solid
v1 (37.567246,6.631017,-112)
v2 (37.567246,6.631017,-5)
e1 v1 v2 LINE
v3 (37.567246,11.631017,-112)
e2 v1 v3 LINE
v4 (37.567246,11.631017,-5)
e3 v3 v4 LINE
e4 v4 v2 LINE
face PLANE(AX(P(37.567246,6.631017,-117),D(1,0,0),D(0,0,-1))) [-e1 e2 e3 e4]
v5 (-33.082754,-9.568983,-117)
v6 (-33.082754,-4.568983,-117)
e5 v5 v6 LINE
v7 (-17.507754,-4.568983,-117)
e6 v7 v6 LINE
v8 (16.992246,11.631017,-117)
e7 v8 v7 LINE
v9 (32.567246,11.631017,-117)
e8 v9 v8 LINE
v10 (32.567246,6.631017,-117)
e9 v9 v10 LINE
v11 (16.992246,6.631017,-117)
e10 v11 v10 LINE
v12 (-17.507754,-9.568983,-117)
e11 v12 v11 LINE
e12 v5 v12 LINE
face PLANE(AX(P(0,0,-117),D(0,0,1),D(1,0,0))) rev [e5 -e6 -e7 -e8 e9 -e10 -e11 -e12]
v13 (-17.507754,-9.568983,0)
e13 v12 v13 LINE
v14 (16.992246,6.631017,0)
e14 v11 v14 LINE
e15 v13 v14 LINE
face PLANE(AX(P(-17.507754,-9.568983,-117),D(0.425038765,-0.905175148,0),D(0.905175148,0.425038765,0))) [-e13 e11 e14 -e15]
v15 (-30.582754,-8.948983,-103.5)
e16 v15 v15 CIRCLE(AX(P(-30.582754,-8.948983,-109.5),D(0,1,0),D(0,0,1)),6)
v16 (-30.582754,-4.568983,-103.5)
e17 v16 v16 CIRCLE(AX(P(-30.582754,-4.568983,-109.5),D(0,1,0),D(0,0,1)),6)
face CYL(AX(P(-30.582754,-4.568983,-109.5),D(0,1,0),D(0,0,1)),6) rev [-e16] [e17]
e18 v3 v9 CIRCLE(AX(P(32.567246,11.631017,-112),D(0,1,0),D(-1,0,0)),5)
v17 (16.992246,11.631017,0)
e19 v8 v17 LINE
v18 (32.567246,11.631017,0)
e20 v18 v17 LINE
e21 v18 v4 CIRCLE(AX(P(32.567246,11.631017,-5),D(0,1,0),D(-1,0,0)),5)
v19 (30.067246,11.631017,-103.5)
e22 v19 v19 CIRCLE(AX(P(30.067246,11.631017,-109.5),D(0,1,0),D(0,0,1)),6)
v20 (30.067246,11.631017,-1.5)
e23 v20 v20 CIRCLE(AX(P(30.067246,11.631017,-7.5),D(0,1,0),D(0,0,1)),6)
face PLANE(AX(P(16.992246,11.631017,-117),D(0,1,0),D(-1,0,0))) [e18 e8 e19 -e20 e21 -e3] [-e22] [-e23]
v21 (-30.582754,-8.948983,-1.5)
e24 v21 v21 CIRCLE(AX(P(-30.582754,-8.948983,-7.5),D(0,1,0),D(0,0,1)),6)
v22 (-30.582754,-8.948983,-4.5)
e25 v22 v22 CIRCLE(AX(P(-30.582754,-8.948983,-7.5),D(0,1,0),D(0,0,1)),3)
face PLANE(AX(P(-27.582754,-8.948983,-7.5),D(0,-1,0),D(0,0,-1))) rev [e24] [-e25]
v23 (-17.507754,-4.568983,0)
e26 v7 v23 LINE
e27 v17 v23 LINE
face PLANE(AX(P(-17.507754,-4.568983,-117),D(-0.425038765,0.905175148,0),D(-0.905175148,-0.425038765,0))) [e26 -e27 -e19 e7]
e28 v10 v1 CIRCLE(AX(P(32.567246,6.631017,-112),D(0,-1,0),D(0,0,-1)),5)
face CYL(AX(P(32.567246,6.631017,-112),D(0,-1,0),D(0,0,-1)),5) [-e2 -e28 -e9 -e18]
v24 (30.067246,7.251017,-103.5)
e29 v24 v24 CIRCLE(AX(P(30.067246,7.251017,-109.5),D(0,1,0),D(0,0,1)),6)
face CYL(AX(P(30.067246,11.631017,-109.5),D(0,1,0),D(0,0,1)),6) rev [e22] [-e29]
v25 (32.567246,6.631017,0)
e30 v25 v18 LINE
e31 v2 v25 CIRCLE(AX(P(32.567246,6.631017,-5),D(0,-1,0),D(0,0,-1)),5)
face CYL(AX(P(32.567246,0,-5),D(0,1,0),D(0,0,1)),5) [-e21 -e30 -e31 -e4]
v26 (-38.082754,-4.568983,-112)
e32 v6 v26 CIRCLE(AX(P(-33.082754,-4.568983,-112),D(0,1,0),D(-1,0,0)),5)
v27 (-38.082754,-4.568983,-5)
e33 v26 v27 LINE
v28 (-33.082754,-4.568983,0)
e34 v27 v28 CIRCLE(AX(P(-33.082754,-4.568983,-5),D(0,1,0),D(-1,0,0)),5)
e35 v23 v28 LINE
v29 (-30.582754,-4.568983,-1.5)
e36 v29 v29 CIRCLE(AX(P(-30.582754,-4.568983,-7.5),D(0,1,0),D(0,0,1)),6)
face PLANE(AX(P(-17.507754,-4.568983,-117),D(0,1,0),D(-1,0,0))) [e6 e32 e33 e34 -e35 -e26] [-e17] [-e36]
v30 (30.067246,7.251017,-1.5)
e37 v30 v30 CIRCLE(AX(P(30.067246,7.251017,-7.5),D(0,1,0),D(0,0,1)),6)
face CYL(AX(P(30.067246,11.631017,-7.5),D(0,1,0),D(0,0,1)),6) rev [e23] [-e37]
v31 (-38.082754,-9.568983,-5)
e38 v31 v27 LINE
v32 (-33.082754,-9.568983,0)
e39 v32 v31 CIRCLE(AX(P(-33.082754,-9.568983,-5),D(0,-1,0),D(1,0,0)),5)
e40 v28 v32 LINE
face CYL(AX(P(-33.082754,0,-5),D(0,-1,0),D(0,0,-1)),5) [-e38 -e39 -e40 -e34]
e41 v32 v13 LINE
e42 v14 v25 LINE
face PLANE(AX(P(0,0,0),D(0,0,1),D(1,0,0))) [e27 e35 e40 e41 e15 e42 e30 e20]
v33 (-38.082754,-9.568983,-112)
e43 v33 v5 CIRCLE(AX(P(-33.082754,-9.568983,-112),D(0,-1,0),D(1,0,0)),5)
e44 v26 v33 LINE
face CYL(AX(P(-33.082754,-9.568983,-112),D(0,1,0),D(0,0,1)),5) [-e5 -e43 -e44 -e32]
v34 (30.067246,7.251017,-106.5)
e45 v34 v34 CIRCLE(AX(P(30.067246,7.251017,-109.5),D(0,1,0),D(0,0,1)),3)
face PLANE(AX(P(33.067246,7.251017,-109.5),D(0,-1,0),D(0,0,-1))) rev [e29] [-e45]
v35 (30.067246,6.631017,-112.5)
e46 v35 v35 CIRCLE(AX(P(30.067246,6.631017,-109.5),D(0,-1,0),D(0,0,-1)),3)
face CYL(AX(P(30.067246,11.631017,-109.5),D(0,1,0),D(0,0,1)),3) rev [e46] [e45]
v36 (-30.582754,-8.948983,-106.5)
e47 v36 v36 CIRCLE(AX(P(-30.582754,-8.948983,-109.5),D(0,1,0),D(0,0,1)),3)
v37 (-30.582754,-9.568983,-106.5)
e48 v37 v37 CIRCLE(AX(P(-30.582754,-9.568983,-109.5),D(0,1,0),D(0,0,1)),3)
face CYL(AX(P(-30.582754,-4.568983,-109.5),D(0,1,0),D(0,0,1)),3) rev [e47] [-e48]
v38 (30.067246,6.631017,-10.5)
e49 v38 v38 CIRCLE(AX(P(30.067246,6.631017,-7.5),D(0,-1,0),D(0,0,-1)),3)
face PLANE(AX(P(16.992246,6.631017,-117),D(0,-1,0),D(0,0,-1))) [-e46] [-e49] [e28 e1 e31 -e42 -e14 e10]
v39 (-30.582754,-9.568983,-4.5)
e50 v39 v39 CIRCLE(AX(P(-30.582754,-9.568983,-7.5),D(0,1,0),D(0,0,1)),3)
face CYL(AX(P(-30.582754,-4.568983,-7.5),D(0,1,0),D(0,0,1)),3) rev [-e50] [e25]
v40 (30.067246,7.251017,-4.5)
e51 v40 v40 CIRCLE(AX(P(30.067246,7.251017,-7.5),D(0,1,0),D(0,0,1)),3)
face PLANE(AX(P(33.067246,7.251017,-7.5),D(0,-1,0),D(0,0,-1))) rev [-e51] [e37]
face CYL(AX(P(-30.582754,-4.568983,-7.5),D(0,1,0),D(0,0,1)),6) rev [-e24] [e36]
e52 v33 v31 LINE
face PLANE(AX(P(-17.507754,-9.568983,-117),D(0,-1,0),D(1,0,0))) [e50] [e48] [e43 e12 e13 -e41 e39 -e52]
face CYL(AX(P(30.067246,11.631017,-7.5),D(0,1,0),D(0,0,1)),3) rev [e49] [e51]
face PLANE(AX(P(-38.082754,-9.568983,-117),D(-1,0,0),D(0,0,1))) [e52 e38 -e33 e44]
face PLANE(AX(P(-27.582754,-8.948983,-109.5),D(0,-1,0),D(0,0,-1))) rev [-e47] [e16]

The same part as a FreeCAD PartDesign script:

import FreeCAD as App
import Part
import Sketcher

V = App.Vector


def edges_at(feature, points):
    """Names of the edges that pass closest to the given points."""
    edges = feature.Shape.Edges
    near = lambda p: min(range(len(edges)), key=lambda i: edges[i].distToShape(Part.Vertex(*p))[0])
    return sorted({f"Edge{near(p) + 1}" for p in points})

doc = App.newDocument("Part")
body = doc.addObject("PartDesign::Body", "Body")

sketch1 = doc.addObject("Sketcher::SketchObject", "Sketch")
body.addObject(sketch1)
sketch1.AttachmentSupport = (doc.XY_Plane, [""])
sketch1.MapMode = "FlatFace"
sketch1.addGeometry(Part.LineSegment(V(17, 12, 0), V(-18, -5, 0)), False)
sketch1.addGeometry(Part.LineSegment(V(-18, -5, 0), V(-38, -5, 0)), False)
sketch1.addGeometry(Part.LineSegment(V(-38, -5, 0), V(-38, -10, 0)), False)
sketch1.addGeometry(Part.LineSegment(V(-38, -10, 0), V(-18, -10, 0)), False)
sketch1.addGeometry(Part.LineSegment(V(-18, -10, 0), V(17, 7, 0)), False)
sketch1.addGeometry(Part.LineSegment(V(17, 7, 0), V(38, 7, 0)), False)
sketch1.addGeometry(Part.LineSegment(V(38, 7, 0), V(38, 12, 0)), False)
sketch1.addGeometry(Part.LineSegment(V(38, 12, 0), V(17, 12, 0)), False)
sketch1.addConstraint(Sketcher.Constraint("Coincident", 0, 2, 1, 1))
sketch1.addConstraint(Sketcher.Constraint("Coincident", 1, 2, 2, 1))
sketch1.addConstraint(Sketcher.Constraint("Coincident", 2, 2, 3, 1))
sketch1.addConstraint(Sketcher.Constraint("Coincident", 3, 2, 4, 1))
sketch1.addConstraint(Sketcher.Constraint("Coincident", 4, 2, 5, 1))
sketch1.addConstraint(Sketcher.Constraint("Coincident", 5, 2, 6, 1))
sketch1.addConstraint(Sketcher.Constraint("Coincident", 6, 2, 7, 1))
sketch1.addConstraint(Sketcher.Constraint("Coincident", 7, 2, 0, 1))
sketch1.addConstraint(Sketcher.Constraint("Horizontal", 1))
sketch1.addConstraint(Sketcher.Constraint("Vertical", 2))
sketch1.addConstraint(Sketcher.Constraint("Horizontal", 3))
sketch1.addConstraint(Sketcher.Constraint("Horizontal", 5))
sketch1.addConstraint(Sketcher.Constraint("Vertical", 6))
sketch1.addConstraint(Sketcher.Constraint("Horizontal", 7))
sketch1.addConstraint(Sketcher.Constraint("Parallel", 0, 4))
sketch1.addConstraint(Sketcher.Constraint("Vertical", 0, 2, 3, 2))
sketch1.addConstraint(Sketcher.Constraint("Vertical", 4, 2, 7, 2))
sketch1.addConstraint(Sketcher.Constraint("Equal", 3, 5))
sketch1.addConstraint(Sketcher.Constraint("DistanceY", 2, 2, 2, 1, 5.0))
sketch1.addConstraint(Sketcher.Constraint("DistanceX", 0, 2, 4, 2, 34.5))
sketch1.addConstraint(Sketcher.Constraint("DistanceY", 0, 2, 4, 2, 11.2))
sketch1.addConstraint(Sketcher.Constraint("DistanceX", 1, 2, 1, 1, 20.575))
sketch1.addConstraint(Sketcher.Constraint("DistanceX", 0, 2, -1, 1, 17.507754))
sketch1.addConstraint(Sketcher.Constraint("DistanceY", 0, 2, -1, 1, 4.568983))
pad1 = doc.addObject("PartDesign::Pad", "Pad")
body.addObject(pad1)
pad1.Profile = sketch1
pad1.Length = 117
pad1.Reversed = True

sketch2 = doc.addObject("Sketcher::SketchObject", "Sketch001")
body.addObject(sketch2)
sketch2.AttachmentSupport = (doc.XZ_Plane, [""])
sketch2.MapMode = "FlatFace"
sketch2.AttachmentOffset = App.Placement(V(0, 0, 4.568983), App.Rotation())
sketch2.addGeometry(Part.Circle(V(-30.6, -109.5, 0), V(0, 0, 1), 3), False)
sketch2.addGeometry(Part.Circle(V(-30.6, -7.5, 0), V(0, 0, 1), 3), False)
sketch2.addConstraint(Sketcher.Constraint("Equal", 0, 1))
sketch2.addConstraint(Sketcher.Constraint("Vertical", 0, 3, 1, 3))
sketch2.addConstraint(Sketcher.Constraint("Diameter", 0, 6.0))
sketch2.addConstraint(Sketcher.Constraint("DistanceY", 0, 3, 1, 3, 102.0))
sketch2.addConstraint(Sketcher.Constraint("DistanceY", 0, 3, -1, 1, 109.5))
sketch2.addConstraint(Sketcher.Constraint("DistanceX", 0, 3, -1, 1, 30.582754))
doc.recompute()
hole = doc.addObject("PartDesign::Hole", "Hole")
body.addObject(hole)
hole.Profile = sketch2
hole.ThreadType = "None"
hole.Diameter = 6
hole.DepthType = "ThroughAll"
hole.HoleCutType = "Counterbore"
hole.HoleCutDiameter = 12
hole.HoleCutDepth = 4.38
hole.Reversed = True

sketch3 = doc.addObject("Sketcher::SketchObject", "Sketch002")
body.addObject(sketch3)
sketch3.AttachmentSupport = (doc.XZ_Plane, [""])
sketch3.MapMode = "FlatFace"
sketch3.AttachmentOffset = App.Placement(V(0, 0, -11.631017), App.Rotation())
sketch3.addGeometry(Part.Circle(V(30.1, -7.5, 0), V(0, 0, 1), 3), False)
sketch3.addGeometry(Part.Circle(V(30.1, -109.5, 0), V(0, 0, 1), 3), False)
sketch3.addConstraint(Sketcher.Constraint("Equal", 0, 1))
sketch3.addConstraint(Sketcher.Constraint("Vertical", 0, 3, 1, 3))
sketch3.addConstraint(Sketcher.Constraint("Diameter", 0, 6.0))
sketch3.addConstraint(Sketcher.Constraint("DistanceY", 1, 3, 0, 3, 102.0))
sketch3.addConstraint(Sketcher.Constraint("DistanceY", 0, 3, -1, 1, 7.5))
sketch3.addConstraint(Sketcher.Constraint("DistanceX", -1, 1, 0, 3, 30.067246))
doc.recompute()
hole2 = doc.addObject("PartDesign::Hole", "Hole001")
body.addObject(hole2)
hole2.Profile = sketch3
hole2.ThreadType = "None"
hole2.Diameter = 6
hole2.DepthType = "ThroughAll"
hole2.HoleCutType = "Counterbore"
hole2.HoleCutDiameter = 12
hole2.HoleCutDepth = 4.38
hole2.Reversed = True
doc.recompute()

fillet = doc.addObject("PartDesign::Fillet", "Fillet")
body.addObject(fillet)
fillet.Base = (hole2, edges_at(hole2, [
    (37.567, 9.131, 0),
    (37.567, 9.131, -117),
    (-38.083, -7.069, -117),
    (-38.083, -7.069, 0),
]))
fillet.Radius = 5

doc.recompute()
